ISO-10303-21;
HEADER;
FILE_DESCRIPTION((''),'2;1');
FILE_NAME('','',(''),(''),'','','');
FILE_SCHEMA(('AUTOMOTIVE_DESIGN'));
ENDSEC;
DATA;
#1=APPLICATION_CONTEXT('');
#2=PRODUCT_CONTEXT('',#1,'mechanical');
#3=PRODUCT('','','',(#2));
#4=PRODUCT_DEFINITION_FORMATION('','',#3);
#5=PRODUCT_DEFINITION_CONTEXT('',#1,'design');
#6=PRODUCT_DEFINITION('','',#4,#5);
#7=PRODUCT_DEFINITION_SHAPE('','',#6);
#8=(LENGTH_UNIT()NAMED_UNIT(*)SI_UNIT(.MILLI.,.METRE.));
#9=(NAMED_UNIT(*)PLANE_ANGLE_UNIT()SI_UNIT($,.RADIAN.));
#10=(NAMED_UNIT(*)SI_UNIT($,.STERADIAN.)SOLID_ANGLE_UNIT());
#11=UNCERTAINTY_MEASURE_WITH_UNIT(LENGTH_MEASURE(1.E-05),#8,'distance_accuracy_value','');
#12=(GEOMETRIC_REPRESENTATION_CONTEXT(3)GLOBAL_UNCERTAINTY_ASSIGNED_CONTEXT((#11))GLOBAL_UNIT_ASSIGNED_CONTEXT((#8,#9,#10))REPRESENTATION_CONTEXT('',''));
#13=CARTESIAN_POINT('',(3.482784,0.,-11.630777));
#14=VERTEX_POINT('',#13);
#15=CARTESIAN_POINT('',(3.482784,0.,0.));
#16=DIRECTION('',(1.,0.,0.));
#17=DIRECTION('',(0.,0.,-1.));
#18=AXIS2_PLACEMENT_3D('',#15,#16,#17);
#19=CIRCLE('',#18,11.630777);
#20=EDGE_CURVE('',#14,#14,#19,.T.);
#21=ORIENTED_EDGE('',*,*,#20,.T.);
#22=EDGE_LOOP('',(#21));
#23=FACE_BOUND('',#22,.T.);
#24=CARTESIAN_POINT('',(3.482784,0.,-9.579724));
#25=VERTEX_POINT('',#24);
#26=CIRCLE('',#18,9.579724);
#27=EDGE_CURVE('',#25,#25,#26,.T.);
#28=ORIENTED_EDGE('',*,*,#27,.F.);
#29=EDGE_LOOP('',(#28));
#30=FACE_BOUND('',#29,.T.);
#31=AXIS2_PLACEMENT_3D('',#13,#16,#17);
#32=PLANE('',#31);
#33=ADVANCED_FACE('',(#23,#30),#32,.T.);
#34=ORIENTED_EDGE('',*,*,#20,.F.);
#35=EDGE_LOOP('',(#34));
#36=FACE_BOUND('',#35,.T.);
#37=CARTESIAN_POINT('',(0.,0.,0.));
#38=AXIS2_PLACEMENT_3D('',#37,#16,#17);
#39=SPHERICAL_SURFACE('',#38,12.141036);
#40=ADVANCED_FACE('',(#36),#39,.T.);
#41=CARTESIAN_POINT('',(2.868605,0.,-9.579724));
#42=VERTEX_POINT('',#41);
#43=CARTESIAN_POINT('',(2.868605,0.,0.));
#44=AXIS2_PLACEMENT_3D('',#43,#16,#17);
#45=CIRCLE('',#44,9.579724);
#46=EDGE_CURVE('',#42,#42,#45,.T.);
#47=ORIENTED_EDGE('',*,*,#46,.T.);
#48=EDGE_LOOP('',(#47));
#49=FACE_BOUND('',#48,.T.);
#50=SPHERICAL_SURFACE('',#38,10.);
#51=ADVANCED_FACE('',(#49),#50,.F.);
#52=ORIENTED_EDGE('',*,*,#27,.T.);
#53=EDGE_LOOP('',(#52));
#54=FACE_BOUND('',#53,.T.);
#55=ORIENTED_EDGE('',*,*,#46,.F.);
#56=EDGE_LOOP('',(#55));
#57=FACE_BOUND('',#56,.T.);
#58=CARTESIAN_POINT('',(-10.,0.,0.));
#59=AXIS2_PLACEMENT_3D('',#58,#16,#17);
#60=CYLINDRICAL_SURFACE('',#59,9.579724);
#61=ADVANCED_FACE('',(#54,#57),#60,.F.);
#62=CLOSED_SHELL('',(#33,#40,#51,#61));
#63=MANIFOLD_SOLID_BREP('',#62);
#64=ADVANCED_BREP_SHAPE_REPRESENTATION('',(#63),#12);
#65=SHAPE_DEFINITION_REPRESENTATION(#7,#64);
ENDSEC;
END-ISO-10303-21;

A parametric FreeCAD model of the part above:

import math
import FreeCAD as App
import Part
import Sketcher

V = App.Vector
Q = App.Units.Quantity

doc = App.newDocument("Part")
body = doc.addObject("PartDesign::Body", "Body")

sketch1 = body.newObject("Sketcher::SketchObject", "Sketch")
sketch1.AttachmentSupport = (doc.getObject("XZ_Plane"), [""])
sketch1.MapMode = "FlatFace"
sketch1.addGeometry(Part.LineSegment(V(-12.141036, 0, 0), V(-10, 0, 0)), False)
sketch1.addGeometry(Part.ArcOfCircle(Part.Circle(V(0, 0, 0), V(0, 0, 1), 10), math.radians(180), math.radians(286.670091)), False)
sketch1.addGeometry(Part.LineSegment(V(2.868605, -9.579724, 0), V(3.482784, -9.579724, 0)), False)
sketch1.addGeometry(Part.LineSegment(V(3.482784, -9.579724, 0), V(3.482784, -11.630777, 0)), False)
sketch1.addGeometry(Part.ArcOfCircle(Part.Circle(V(0, 0, 0), V(0, 0, 1), 12.141036), math.radians(180), math.radians(286.670091)), False)
sketch1.addConstraint(Sketcher.Constraint("Coincident", 0, 2, 1, 1))
sketch1.addConstraint(Sketcher.Constraint("Coincident", 1, 2, 2, 1))
sketch1.addConstraint(Sketcher.Constraint("Coincident", 2, 2, 3, 1))
sketch1.addConstraint(Sketcher.Constraint("Coincident", 3, 2, 4, 2))
sketch1.addConstraint(Sketcher.Constraint("Coincident", 4, 1, 0, 1))
sketch1.addConstraint(Sketcher.Constraint("Horizontal", 0))
sketch1.addConstraint(Sketcher.Constraint("Horizontal", 2))
sketch1.addConstraint(Sketcher.Constraint("Vertical", 3))
sketch1.addConstraint(Sketcher.Constraint("Coincident", 1, 3, -1, 1))
sketch1.addConstraint(Sketcher.Constraint("Coincident", 4, 3, -1, 1))
sketch1.addConstraint(Sketcher.Constraint("PointOnObject", 0, 2, -1))
sketch1.addConstraint(Sketcher.Constraint("Radius", 1, Q("10 mm")))
sketch1.addConstraint(Sketcher.Constraint("Radius", 4, Q("12.141036 mm")))
sketch1.addConstraint(Sketcher.Constraint("DistanceX", 2, 1, 2, 2, Q("0.614179 mm")))
sketch1.addConstraint(Sketcher.Constraint("DistanceX", 4, 1, 1, 2, Q("15.009641 mm")))
revolution = body.newObject("PartDesign::Revolution", "Revolution")
revolution.Profile = sketch1
revolution.ReferenceAxis = (sketch1, ["H_Axis"])
revolution.Angle = 360

doc.recompute()
